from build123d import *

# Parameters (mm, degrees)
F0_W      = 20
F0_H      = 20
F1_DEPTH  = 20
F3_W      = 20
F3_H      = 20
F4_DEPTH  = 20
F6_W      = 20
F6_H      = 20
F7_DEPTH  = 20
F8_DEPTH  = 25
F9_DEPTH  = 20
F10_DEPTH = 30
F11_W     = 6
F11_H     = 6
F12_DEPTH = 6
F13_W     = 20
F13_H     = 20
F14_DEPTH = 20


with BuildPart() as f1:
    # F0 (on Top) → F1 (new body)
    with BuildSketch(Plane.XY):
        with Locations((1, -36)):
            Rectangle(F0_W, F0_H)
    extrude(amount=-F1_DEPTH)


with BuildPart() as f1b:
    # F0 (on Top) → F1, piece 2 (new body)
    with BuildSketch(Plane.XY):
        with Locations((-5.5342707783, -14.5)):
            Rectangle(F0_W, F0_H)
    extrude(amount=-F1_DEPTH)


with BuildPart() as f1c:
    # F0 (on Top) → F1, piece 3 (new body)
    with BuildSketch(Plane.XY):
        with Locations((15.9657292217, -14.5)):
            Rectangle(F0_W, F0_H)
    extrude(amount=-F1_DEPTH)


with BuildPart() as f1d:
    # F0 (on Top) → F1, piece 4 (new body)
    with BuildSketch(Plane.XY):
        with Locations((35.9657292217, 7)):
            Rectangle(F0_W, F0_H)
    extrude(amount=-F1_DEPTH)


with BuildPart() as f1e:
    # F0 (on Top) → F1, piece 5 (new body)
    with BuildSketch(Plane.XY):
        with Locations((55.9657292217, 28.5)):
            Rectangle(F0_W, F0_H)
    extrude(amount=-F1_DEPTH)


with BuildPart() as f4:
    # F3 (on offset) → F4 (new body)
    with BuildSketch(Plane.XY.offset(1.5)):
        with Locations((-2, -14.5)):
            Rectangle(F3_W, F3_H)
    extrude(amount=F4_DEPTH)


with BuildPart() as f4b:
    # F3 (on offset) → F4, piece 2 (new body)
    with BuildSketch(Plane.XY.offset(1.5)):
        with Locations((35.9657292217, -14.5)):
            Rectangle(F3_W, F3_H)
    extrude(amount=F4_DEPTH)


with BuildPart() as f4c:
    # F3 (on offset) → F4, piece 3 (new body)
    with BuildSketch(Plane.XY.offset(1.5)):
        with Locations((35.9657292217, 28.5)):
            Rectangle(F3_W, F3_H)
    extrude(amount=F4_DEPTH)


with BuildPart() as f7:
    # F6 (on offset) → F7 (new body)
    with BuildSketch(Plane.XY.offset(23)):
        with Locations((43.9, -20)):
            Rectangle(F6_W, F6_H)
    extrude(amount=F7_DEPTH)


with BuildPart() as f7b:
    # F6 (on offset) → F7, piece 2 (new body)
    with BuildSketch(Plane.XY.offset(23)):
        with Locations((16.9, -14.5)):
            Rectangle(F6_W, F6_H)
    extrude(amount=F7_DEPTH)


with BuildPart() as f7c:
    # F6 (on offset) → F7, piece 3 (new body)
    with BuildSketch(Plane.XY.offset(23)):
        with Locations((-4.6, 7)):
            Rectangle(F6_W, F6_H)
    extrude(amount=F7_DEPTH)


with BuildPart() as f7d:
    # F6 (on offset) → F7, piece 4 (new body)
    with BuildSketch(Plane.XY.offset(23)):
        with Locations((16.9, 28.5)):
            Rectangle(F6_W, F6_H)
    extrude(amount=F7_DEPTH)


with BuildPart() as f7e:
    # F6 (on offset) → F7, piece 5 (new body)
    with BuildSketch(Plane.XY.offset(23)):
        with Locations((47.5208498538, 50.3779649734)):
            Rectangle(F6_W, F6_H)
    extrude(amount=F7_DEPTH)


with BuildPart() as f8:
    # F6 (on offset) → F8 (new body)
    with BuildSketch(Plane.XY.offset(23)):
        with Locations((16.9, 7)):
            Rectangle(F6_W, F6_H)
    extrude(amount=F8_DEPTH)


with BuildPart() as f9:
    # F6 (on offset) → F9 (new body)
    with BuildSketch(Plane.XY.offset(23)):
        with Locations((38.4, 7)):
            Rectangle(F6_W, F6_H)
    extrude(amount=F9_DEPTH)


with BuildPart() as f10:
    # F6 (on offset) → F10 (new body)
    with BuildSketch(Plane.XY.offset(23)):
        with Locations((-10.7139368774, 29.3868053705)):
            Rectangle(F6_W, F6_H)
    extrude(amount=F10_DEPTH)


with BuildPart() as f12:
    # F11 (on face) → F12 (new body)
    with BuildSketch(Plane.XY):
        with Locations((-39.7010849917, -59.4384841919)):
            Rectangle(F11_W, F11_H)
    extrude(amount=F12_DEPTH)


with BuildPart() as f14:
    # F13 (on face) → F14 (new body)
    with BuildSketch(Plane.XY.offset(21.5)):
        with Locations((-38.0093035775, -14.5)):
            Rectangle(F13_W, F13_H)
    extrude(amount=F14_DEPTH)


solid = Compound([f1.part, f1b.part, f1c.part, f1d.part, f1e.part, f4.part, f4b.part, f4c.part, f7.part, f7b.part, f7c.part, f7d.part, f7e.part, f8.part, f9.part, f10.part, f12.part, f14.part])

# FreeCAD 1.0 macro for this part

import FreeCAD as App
import Part
import Sketcher

V = App.Vector
Q = App.Units.Quantity


def add_polygon(sketch, points):
    """Adds a closed chain of lines whose ends are joined by coincident constraints."""
    first, n = sketch.GeometryCount, len(points)
    for a, b in zip(points, points[1:] + points[:1]):
        sketch.addGeometry(Part.LineSegment(App.Vector(*a, 0), App.Vector(*b, 0)), False)
    for i in range(n):
        sketch.addConstraint(Sketcher.Constraint("Coincident", first + i, 2, first + (i + 1) % n, 1))

doc = App.newDocument("Part")
body = doc.addObject("PartDesign::Body", "Body")

sketch1 = body.newObject("Sketcher::SketchObject", "Sketch")
sketch1.AttachmentSupport = (doc.getObject("XY_Plane"), [""])
sketch1.MapMode = "FlatFace"
add_polygon(sketch1, [(-9, -26), (-9, -46), (11, -46), (11, -26)])
sketch1.addConstraint(Sketcher.Constraint("Vertical", 0))
sketch1.addConstraint(Sketcher.Constraint("Horizontal", 1))
sketch1.addConstraint(Sketcher.Constraint("Vertical", 2))
sketch1.addConstraint(Sketcher.Constraint("Horizontal", 3))
sketch1.addConstraint(Sketcher.Constraint("Equal", 3, 0))
sketch1.addConstraint(Sketcher.Constraint("DistanceX", 1, 1, 1, 2, Q("20 mm")))
sketch1.addConstraint(Sketcher.Constraint("DistanceX", 0, 2, -1, 1, Q("9 mm")))
sketch1.addConstraint(Sketcher.Constraint("DistanceY", 0, 2, -1, 1, Q("46 mm")))
pad1 = body.newObject("PartDesign::Pad", "Pad")
pad1.Profile = sketch1
pad1.Length = 20
pad1.Reversed = True
body2 = doc.addObject("PartDesign::Body", "Body001")

sketch2 = body2.newObject("Sketcher::SketchObject", "Sketch001")
sketch2.AttachmentSupport = (doc.getObject("XY_Plane001"), [""])
sketch2.MapMode = "FlatFace"
add_polygon(sketch2, [(-15.534271, -4.5), (-15.534271, -24.5), (4.465729, -24.5), (4.465729, -4.5)])
sketch2.addConstraint(Sketcher.Constraint("Vertical", 0))
sketch2.addConstraint(Sketcher.Constraint("Horizontal", 1))
sketch2.addConstraint(Sketcher.Constraint("Vertical", 2))
sketch2.addConstraint(Sketcher.Constraint("Horizontal", 3))
sketch2.addConstraint(Sketcher.Constraint("Equal", 3, 0))
sketch2.addConstraint(Sketcher.Constraint("DistanceX", 1, 1, 1, 2, Q("20 mm")))
sketch2.addConstraint(Sketcher.Constraint("DistanceY", 0, 2, -1, 1, Q("24.5 mm")))
sketch2.addConstraint(Sketcher.Constraint("DistanceX", 0, 2, -1, 1, Q("15.534271 mm")))
pad2 = body2.newObject("PartDesign::Pad", "Pad001")
pad2.Profile = sketch2
pad2.Length = 20
pad2.Reversed = True
body3 = doc.addObject("PartDesign::Body", "Body002")

sketch3 = body3.newObject("Sketcher::SketchObject", "Sketch002")
sketch3.AttachmentSupport = (doc.getObject("XY_Plane002"), [""])
sketch3.MapMode = "FlatFace"
add_polygon(sketch3, [(5.965729, -4.5), (5.965729, -24.5), (25.965729, -24.5), (25.965729, -4.5)])
sketch3.addConstraint(Sketcher.Constraint("Vertical", 0))
sketch3.addConstraint(Sketcher.Constraint("Horizontal", 1))
sketch3.addConstraint(Sketcher.Constraint("Vertical", 2))
sketch3.addConstraint(Sketcher.Constraint("Horizontal", 3))
sketch3.addConstraint(Sketcher.Constraint("Equal", 3, 0))
sketch3.addConstraint(Sketcher.Constraint("DistanceX", 1, 1, 1, 2, Q("20 mm")))
sketch3.addConstraint(Sketcher.Constraint("DistanceY", 0, 2, -1, 1, Q("24.5 mm")))
sketch3.addConstraint(Sketcher.Constraint("DistanceX", -1, 1, 0, 2, Q("5.965729 mm")))
pad3 = body3.newObject("PartDesign::Pad", "Pad002")
pad3.Profile = sketch3
pad3.Length = 20
pad3.Reversed = True
body4 = doc.addObject("PartDesign::Body", "Body003")

sketch4 = body4.newObject("Sketcher::SketchObject", "Sketch003")
sketch4.AttachmentSupport = (doc.getObject("XY_Plane003"), [""])
sketch4.MapMode = "FlatFace"
add_polygon(sketch4, [(25.965729, 17), (25.965729, -3), (45.965729, -3), (45.965729, 17)])
sketch4.addConstraint(Sketcher.Constraint("Vertical", 0))
sketch4.addConstraint(Sketcher.Constraint("Horizontal", 1))
sketch4.addConstraint(Sketcher.Constraint("Vertical", 2))
sketch4.addConstraint(Sketcher.Constraint("Horizontal", 3))
sketch4.addConstraint(Sketcher.Constraint("Equal", 3, 0))
sketch4.addConstraint(Sketcher.Constraint("DistanceX", 1, 1, 1, 2, Q("20 mm")))
sketch4.addConstraint(Sketcher.Constraint("DistanceY", 0, 2, -1, 1, Q("3 mm")))
sketch4.addConstraint(Sketcher.Constraint("DistanceX", -1, 1, 0, 2, Q("25.965729 mm")))
pad4 = body4.newObject("PartDesign::Pad", "Pad003")
pad4.Profile = sketch4
pad4.Length = 20
pad4.Reversed = True
body5 = doc.addObject("PartDesign::Body", "Body004")

sketch5 = body5.newObject("Sketcher::SketchObject", "Sketch004")
sketch5.AttachmentSupport = (doc.getObject("XY_Plane004"), [""])
sketch5.MapMode = "FlatFace"
add_polygon(sketch5, [(45.965729, 38.5), (45.965729, 18.5), (65.965729, 18.5), (65.965729, 38.5)])
sketch5.addConstraint(Sketcher.Constraint("Vertical", 0))
sketch5.addConstraint(Sketcher.Constraint("Horizontal", 1))
sketch5.addConstraint(Sketcher.Constraint("Vertical", 2))
sketch5.addConstraint(Sketcher.Constraint("Horizontal", 3))
sketch5.addConstraint(Sketcher.Constraint("Equal", 3, 0))
sketch5.addConstraint(Sketcher.Constraint("DistanceX", 1, 1, 1, 2, Q("20 mm")))
sketch5.addConstraint(Sketcher.Constraint("DistanceY", -1, 1, 0, 2, Q("18.5 mm")))
sketch5.addConstraint(Sketcher.Constraint("DistanceX", -1, 1, 0, 2, Q("45.965729 mm")))
pad5 = body5.newObject("PartDesign::Pad", "Pad004")
pad5.Profile = sketch5
pad5.Length = 20
pad5.Reversed = True
body6 = doc.addObject("PartDesign::Body", "Body005")

sketch6 = body6.newObject("Sketcher::SketchObject", "Sketch005")
sketch6.AttachmentSupport = (doc.getObject("XY_Plane005"), [""])
sketch6.MapMode = "FlatFace"
sketch6.AttachmentOffset = App.Placement(V(0, 0, 1.5), App.Rotation())
add_polygon(sketch6, [(-12, -4.5), (-12, -24.5), (8, -24.5), (8, -4.5)])
sketch6.addConstraint(Sketcher.Constraint("Vertical", 0))
sketch6.addConstraint(Sketcher.Constraint("Horizontal", 1))
sketch6.addConstraint(Sketcher.Constraint("Vertical", 2))
sketch6.addConstraint(Sketcher.Constraint("Horizontal", 3))
sketch6.addConstraint(Sketcher.Constraint("Equal", 3, 0))
sketch6.addConstraint(Sketcher.Constraint("DistanceX", 1, 1, 1, 2, Q("20 mm")))
sketch6.addConstraint(Sketcher.Constraint("DistanceX", 0, 2, -1, 1, Q("12 mm")))
sketch6.addConstraint(Sketcher.Constraint("DistanceY", 0, 2, -1, 1, Q("24.5 mm")))
pad6 = body6.newObject("PartDesign::Pad", "Pad005")
pad6.Profile = sketch6
pad6.Length = 20
body7 = doc.addObject("PartDesign::Body", "Body006")

sketch7 = body7.newObject("Sketcher::SketchObject", "Sketch006")
sketch7.AttachmentSupport = (doc.getObject("XY_Plane006"), [""])
sketch7.MapMode = "FlatFace"
sketch7.AttachmentOffset = App.Placement(V(0, 0, 1.5), App.Rotation())
add_polygon(sketch7, [(25.965729, -4.5), (25.965729, -24.5), (45.965729, -24.5), (45.965729, -4.5)])
sketch7.addConstraint(Sketcher.Constraint("Vertical", 0))
sketch7.addConstraint(Sketcher.Constraint("Horizontal", 1))
sketch7.addConstraint(Sketcher.Constraint("Vertical", 2))
sketch7.addConstraint(Sketcher.Constraint("Horizontal", 3))
sketch7.addConstraint(Sketcher.Constraint("Equal", 3, 0))
sketch7.addConstraint(Sketcher.Constraint("DistanceX", 1, 1, 1, 2, Q("20 mm")))
sketch7.addConstraint(Sketcher.Constraint("DistanceY", 0, 2, -1, 1, Q("24.5 mm")))
sketch7.addConstraint(Sketcher.Constraint("DistanceX", -1, 1, 0, 2, Q("25.965729 mm")))
pad7 = body7.newObject("PartDesign::Pad", "Pad006")
pad7.Profile = sketch7
pad7.Length = 20
body8 = doc.addObject("PartDesign::Body", "Body007")

sketch8 = body8.newObject("Sketcher::SketchObject", "Sketch007")
sketch8.AttachmentSupport = (doc.getObject("XY_Plane007"), [""])
sketch8.MapMode = "FlatFace"
sketch8.AttachmentOffset = App.Placement(V(0, 0, 1.5), App.Rotation())
add_polygon(sketch8, [(25.965729, 38.5), (25.965729, 18.5), (45.965729, 18.5), (45.965729, 38.5)])
sketch8.addConstraint(Sketcher.Constraint("Vertical", 0))
sketch8.addConstraint(Sketcher.Constraint("Horizontal", 1))
sketch8.addConstraint(Sketcher.Constraint("Vertical", 2))
sketch8.addConstraint(Sketcher.Constraint("Horizontal", 3))
sketch8.addConstraint(Sketcher.Constraint("Equal", 3, 0))
sketch8.addConstraint(Sketcher.Constraint("DistanceX", 1, 1, 1, 2, Q("20 mm")))
sketch8.addConstraint(Sketcher.Constraint("DistanceY", -1, 1, 0, 2, Q("18.5 mm")))
sketch8.addConstraint(Sketcher.Constraint("DistanceX", -1, 1, 0, 2, Q("25.965729 mm")))
pad8 = body8.newObject("PartDesign::Pad", "Pad007")
pad8.Profile = sketch8
pad8.Length = 20
body9 = doc.addObject("PartDesign::Body", "Body008")

sketch9 = body9.newObject("Sketcher::SketchObject", "Sketch008")
sketch9.AttachmentSupport = (doc.getObject("XY_Plane008"), [""])
sketch9.MapMode = "FlatFace"
sketch9.AttachmentOffset = App.Placement(V(0, 0, 23), App.Rotation())
add_polygon(sketch9, [(33.9, -10), (33.9, -30), (53.9, -30), (53.9, -10)])
sketch9.addConstraint(Sketcher.Constraint("Vertical", 0))
sketch9.addConstraint(Sketcher.Constraint("Horizontal", 1))
sketch9.addConstraint(Sketcher.Constraint("Vertical", 2))
sketch9.addConstraint(Sketcher.Constraint("Horizontal", 3))
sketch9.addConstraint(Sketcher.Constraint("Equal", 3, 0))
sketch9.addConstraint(Sketcher.Constraint("DistanceX", 1, 1, 1, 2, Q("20 mm")))
sketch9.addConstraint(Sketcher.Constraint("DistanceY", 0, 2, -1, 1, Q("30 mm")))
sketch9.addConstraint(Sketcher.Constraint("DistanceX", -1, 1, 0, 2, Q("33.9 mm")))
pad9 = body9.newObject("PartDesign::Pad", "Pad008")
pad9.Profile = sketch9
pad9.Length = 20
body10 = doc.addObject("PartDesign::Body", "Body009")

sketch10 = body10.newObject("Sketcher::SketchObject", "Sketch009")
sketch10.AttachmentSupport = (doc.getObject("XY_Plane009"), [""])
sketch10.MapMode = "FlatFace"
sketch10.AttachmentOffset = App.Placement(V(0, 0, 23), App.Rotation())
add_polygon(sketch10, [(6.9, -4.5), (6.9, -24.5), (26.9, -24.5), (26.9, -4.5)])
sketch10.addConstraint(Sketcher.Constraint("Vertical", 0))
sketch10.addConstraint(Sketcher.Constraint("Horizontal", 1))
sketch10.addConstraint(Sketcher.Constraint("Vertical", 2))
sketch10.addConstraint(Sketcher.Constraint("Horizontal", 3))
sketch10.addConstraint(Sketcher.Constraint("Equal", 3, 0))
sketch10.addConstraint(Sketcher.Constraint("DistanceX", 1, 1, 1, 2, Q("20 mm")))
sketch10.addConstraint(Sketcher.Constraint("DistanceX", -1, 1, 0, 2, Q("6.9 mm")))
sketch10.addConstraint(Sketcher.Constraint("DistanceY", 0, 2, -1, 1, Q("24.5 mm")))
pad10 = body10.newObject("PartDesign::Pad", "Pad009")
pad10.Profile = sketch10
pad10.Length = 20
body11 = doc.addObject("PartDesign::Body", "Body010")

sketch11 = body11.newObject("Sketcher::SketchObject", "Sketch010")
sketch11.AttachmentSupport = (doc.getObject("XY_Plane010"), [""])
sketch11.MapMode = "FlatFace"
sketch11.AttachmentOffset = App.Placement(V(0, 0, 23), App.Rotation())
add_polygon(sketch11, [(-14.6, 17), (-14.6, -3), (5.4, -3), (5.4, 17)])
sketch11.addConstraint(Sketcher.Constraint("Vertical", 0))
sketch11.addConstraint(Sketcher.Constraint("Horizontal", 1))
sketch11.addConstraint(Sketcher.Constraint("Vertical", 2))
sketch11.addConstraint(Sketcher.Constraint("Horizontal", 3))
sketch11.addConstraint(Sketcher.Constraint("Equal", 3, 0))
sketch11.addConstraint(Sketcher.Constraint("DistanceX", 1, 1, 1, 2, Q("20 mm")))
sketch11.addConstraint(Sketcher.Constraint("DistanceY", 0, 2, -1, 1, Q("3 mm")))
sketch11.addConstraint(Sketcher.Constraint("DistanceX", 0, 2, -1, 1, Q("14.6 mm")))
pad11 = body11.newObject("PartDesign::Pad", "Pad010")
pad11.Profile = sketch11
pad11.Length = 20
body12 = doc.addObject("PartDesign::Body", "Body011")

sketch12 = body12.newObject("Sketcher::SketchObject", "Sketch011")
sketch12.AttachmentSupport = (doc.getObject("XY_Plane011"), [""])
sketch12.MapMode = "FlatFace"
sketch12.AttachmentOffset = App.Placement(V(0, 0, 23), App.Rotation())
add_polygon(sketch12, [(6.9, 38.5), (6.9, 18.5), (26.9, 18.5), (26.9, 38.5)])
sketch12.addConstraint(Sketcher.Constraint("Vertical", 0))
sketch12.addConstraint(Sketcher.Constraint("Horizontal", 1))
sketch12.addConstraint(Sketcher.Constraint("Vertical", 2))
sketch12.addConstraint(Sketcher.Constraint("Horizontal", 3))
sketch12.addConstraint(Sketcher.Constraint("Equal", 3, 0))
sketch12.addConstraint(Sketcher.Constraint("DistanceX", 1, 1, 1, 2, Q("20 mm")))
sketch12.addConstraint(Sketcher.Constraint("DistanceX", -1, 1, 0, 2, Q("6.9 mm")))
sketch12.addConstraint(Sketcher.Constraint("DistanceY", -1, 1, 0, 2, Q("18.5 mm")))
pad12 = body12.newObject("PartDesign::Pad", "Pad011")
pad12.Profile = sketch12
pad12.Length = 20
body13 = doc.addObject("PartDesign::Body", "Body012")

sketch13 = body13.newObject("Sketcher::SketchObject", "Sketch012")
sketch13.AttachmentSupport = (doc.getObject("XY_Plane012"), [""])
sketch13.MapMode = "FlatFace"
sketch13.AttachmentOffset = App.Placement(V(0, 0, 23), App.Rotation())
add_polygon(sketch13, [(37.52085, 60.377965), (37.52085, 40.377965), (57.52085, 40.377965), (57.52085, 60.377965)])
sketch13.addConstraint(Sketcher.Constraint("Vertical", 0))
sketch13.addConstraint(Sketcher.Constraint("Horizontal", 1))
sketch13.addConstraint(Sketcher.Constraint("Vertical", 2))
sketch13.addConstraint(Sketcher.Constraint("Horizontal", 3))
sketch13.addConstraint(Sketcher.Constraint("Equal", 3, 0))
sketch13.addConstraint(Sketcher.Constraint("DistanceX", 1, 1, 1, 2, Q("20 mm")))
sketch13.addConstraint(Sketcher.Constraint("DistanceX", -1, 1, 0, 2, Q("37.52085 mm")))
sketch13.addConstraint(Sketcher.Constraint("DistanceY", -1, 1, 0, 2, Q("40.377965 mm")))
pad13 = body13.newObject("PartDesign::Pad", "Pad012")
pad13.Profile = sketch13
pad13.Length = 20
body14 = doc.addObject("PartDesign::Body", "Body013")

sketch14 = body14.newObject("Sketcher::SketchObject", "Sketch013")
sketch14.AttachmentSupport = (doc.getObject("XY_Plane013"), [""])
sketch14.MapMode = "FlatFace"
sketch14.AttachmentOffset = App.Placement(V(0, 0, 23), App.Rotation())
add_polygon(sketch14, [(6.9, 17), (6.9, -3), (26.9, -3), (26.9, 17)])
sketch14.addConstraint(Sketcher.Constraint("Vertical", 0))
sketch14.addConstraint(Sketcher.Constraint("Horizontal", 1))
sketch14.addConstraint(Sketcher.Constraint("Vertical", 2))
sketch14.addConstraint(Sketcher.Constraint("Horizontal", 3))
sketch14.addConstraint(Sketcher.Constraint("Equal", 3, 0))
sketch14.addConstraint(Sketcher.Constraint("DistanceX", 1, 1, 1, 2, Q("20 mm")))
sketch14.addConstraint(Sketcher.Constraint("DistanceY", 0, 2, -1, 1, Q("3 mm")))
sketch14.addConstraint(Sketcher.Constraint("DistanceX", -1, 1, 0, 2, Q("6.9 mm")))
pad14 = body14.newObject("PartDesign::Pad", "Pad013")
pad14.Profile = sketch14
pad14.Length = 25
body15 = doc.addObject("PartDesign::Body", "Body014")

sketch15 = body15.newObject("Sketcher::SketchObject", "Sketch014")
sketch15.AttachmentSupport = (doc.getObject("XY_Plane014"), [""])
sketch15.MapMode = "FlatFace"
sketch15.AttachmentOffset = App.Placement(V(0, 0, 23), App.Rotation())
add_polygon(sketch15, [(28.4, 17), (28.4, -3), (48.4, -3), (48.4, 17)])
sketch15.addConstraint(Sketcher.Constraint("Vertical", 0))
sketch15.addConstraint(Sketcher.Constraint("Horizontal", 1))
sketch15.addConstraint(Sketcher.Constraint("Vertical", 2))
sketch15.addConstraint(Sketcher.Constraint("Horizontal", 3))
sketch15.addConstraint(Sketcher.Constraint("Equal", 3, 0))
sketch15.addConstraint(Sketcher.Constraint("DistanceX", 1, 1, 1, 2, Q("20 mm")))
sketch15.addConstraint(Sketcher.Constraint("DistanceY", 0, 2, -1, 1, Q("3 mm")))
sketch15.addConstraint(Sketcher.Constraint("DistanceX", -1, 1, 0, 2, Q("28.4 mm")))
pad15 = body15.newObject("PartDesign::Pad", "Pad014")
pad15.Profile = sketch15
pad15.Length = 20
body16 = doc.addObject("PartDesign::Body", "Body015")

sketch16 = body16.newObject("Sketcher::SketchObject", "Sketch015")
sketch16.AttachmentSupport = (doc.getObject("XY_Plane015"), [""])
sketch16.MapMode = "FlatFace"
sketch16.AttachmentOffset = App.Placement(V(0, 0, 23), App.Rotation())
add_polygon(sketch16, [(-20.713937, 39.386805), (-20.713937, 19.386805), (-0.713937, 19.386805), (-0.713937, 39.386805)])
sketch16.addConstraint(Sketcher.Constraint("Vertical", 0))
sketch16.addConstraint(Sketcher.Constraint("Horizontal", 1))
sketch16.addConstraint(Sketcher.Constraint("Vertical", 2))
sketch16.addConstraint(Sketcher.Constraint("Horizontal", 3))
sketch16.addConstraint(Sketcher.Constraint("Equal", 3, 0))
sketch16.addConstraint(Sketcher.Constraint("DistanceX", 1, 1, 1, 2, Q("20 mm")))
sketch16.addConstraint(Sketcher.Constraint("DistanceX", 0, 2, -1, 1, Q("20.713937 mm")))
sketch16.addConstraint(Sketcher.Constraint("DistanceY", -1, 1, 0, 2, Q("19.386805 mm")))
pad16 = body16.newObject("PartDesign::Pad", "Pad015")
pad16.Profile = sketch16
pad16.Length = 30
body17 = doc.addObject("PartDesign::Body", "Body016")

sketch17 = body17.newObject("Sketcher::SketchObject", "Sketch016")
sketch17.AttachmentSupport = (doc.getObject("XY_Plane016"), [""])
sketch17.MapMode = "FlatFace"
add_polygon(sketch17, [(-42.701085, -56.438484), (-42.701085, -62.438484), (-36.701085, -62.438484), (-36.701085, -56.438484)])
sketch17.addConstraint(Sketcher.Constraint("Vertical", 0))
sketch17.addConstraint(Sketcher.Constraint("Horizontal", 1))
sketch17.addConstraint(Sketcher.Constraint("Vertical", 2))
sketch17.addConstraint(Sketcher.Constraint("Horizontal", 3))
sketch17.addConstraint(Sketcher.Constraint("Equal", 3, 0))
sketch17.addConstraint(Sketcher.Constraint("DistanceX", 1, 1, 1, 2, Q("6 mm")))
sketch17.addConstraint(Sketcher.Constraint("DistanceX", 0, 2, -1, 1, Q("42.701085 mm")))
sketch17.addConstraint(Sketcher.Constraint("DistanceY", 0, 2, -1, 1, Q("62.438484 mm")))
pad17 = body17.newObject("PartDesign::Pad", "Pad016")
pad17.Profile = sketch17
pad17.Length = 6
body18 = doc.addObject("PartDesign::Body", "Body017")

sketch18 = body18.newObject("Sketcher::SketchObject", "Sketch017")
sketch18.AttachmentSupport = (doc.getObject("XY_Plane017"), [""])
sketch18.MapMode = "FlatFace"
sketch18.AttachmentOffset = App.Placement(V(0, 0, 21.5), App.Rotation())
add_polygon(sketch18, [(-48.009304, -4.5), (-48.009304, -24.5), (-28.009304, -24.5), (-28.009304, -4.5)])
sketch18.addConstraint(Sketcher.Constraint("Vertical", 0))
sketch18.addConstraint(Sketcher.Constraint("Horizontal", 1))
sketch18.addConstraint(Sketcher.Constraint("Vertical", 2))
sketch18.addConstraint(Sketcher.Constraint("Horizontal", 3))
sketch18.addConstraint(Sketcher.Constraint("Equal", 3, 0))
sketch18.addConstraint(Sketcher.Constraint("DistanceX", 1, 1, 1, 2, Q("20 mm")))
sketch18.addConstraint(Sketcher.Constraint("DistanceY", 0, 2, -1, 1, Q("24.5 mm")))
sketch18.addConstraint(Sketcher.Constraint("DistanceX", 0, 2, -1, 1, Q("48.009304 mm")))
pad18 = body18.newObject("PartDesign::Pad", "Pad017")
pad18.Profile = sketch18
pad18.Length = 20

doc.recompute()
